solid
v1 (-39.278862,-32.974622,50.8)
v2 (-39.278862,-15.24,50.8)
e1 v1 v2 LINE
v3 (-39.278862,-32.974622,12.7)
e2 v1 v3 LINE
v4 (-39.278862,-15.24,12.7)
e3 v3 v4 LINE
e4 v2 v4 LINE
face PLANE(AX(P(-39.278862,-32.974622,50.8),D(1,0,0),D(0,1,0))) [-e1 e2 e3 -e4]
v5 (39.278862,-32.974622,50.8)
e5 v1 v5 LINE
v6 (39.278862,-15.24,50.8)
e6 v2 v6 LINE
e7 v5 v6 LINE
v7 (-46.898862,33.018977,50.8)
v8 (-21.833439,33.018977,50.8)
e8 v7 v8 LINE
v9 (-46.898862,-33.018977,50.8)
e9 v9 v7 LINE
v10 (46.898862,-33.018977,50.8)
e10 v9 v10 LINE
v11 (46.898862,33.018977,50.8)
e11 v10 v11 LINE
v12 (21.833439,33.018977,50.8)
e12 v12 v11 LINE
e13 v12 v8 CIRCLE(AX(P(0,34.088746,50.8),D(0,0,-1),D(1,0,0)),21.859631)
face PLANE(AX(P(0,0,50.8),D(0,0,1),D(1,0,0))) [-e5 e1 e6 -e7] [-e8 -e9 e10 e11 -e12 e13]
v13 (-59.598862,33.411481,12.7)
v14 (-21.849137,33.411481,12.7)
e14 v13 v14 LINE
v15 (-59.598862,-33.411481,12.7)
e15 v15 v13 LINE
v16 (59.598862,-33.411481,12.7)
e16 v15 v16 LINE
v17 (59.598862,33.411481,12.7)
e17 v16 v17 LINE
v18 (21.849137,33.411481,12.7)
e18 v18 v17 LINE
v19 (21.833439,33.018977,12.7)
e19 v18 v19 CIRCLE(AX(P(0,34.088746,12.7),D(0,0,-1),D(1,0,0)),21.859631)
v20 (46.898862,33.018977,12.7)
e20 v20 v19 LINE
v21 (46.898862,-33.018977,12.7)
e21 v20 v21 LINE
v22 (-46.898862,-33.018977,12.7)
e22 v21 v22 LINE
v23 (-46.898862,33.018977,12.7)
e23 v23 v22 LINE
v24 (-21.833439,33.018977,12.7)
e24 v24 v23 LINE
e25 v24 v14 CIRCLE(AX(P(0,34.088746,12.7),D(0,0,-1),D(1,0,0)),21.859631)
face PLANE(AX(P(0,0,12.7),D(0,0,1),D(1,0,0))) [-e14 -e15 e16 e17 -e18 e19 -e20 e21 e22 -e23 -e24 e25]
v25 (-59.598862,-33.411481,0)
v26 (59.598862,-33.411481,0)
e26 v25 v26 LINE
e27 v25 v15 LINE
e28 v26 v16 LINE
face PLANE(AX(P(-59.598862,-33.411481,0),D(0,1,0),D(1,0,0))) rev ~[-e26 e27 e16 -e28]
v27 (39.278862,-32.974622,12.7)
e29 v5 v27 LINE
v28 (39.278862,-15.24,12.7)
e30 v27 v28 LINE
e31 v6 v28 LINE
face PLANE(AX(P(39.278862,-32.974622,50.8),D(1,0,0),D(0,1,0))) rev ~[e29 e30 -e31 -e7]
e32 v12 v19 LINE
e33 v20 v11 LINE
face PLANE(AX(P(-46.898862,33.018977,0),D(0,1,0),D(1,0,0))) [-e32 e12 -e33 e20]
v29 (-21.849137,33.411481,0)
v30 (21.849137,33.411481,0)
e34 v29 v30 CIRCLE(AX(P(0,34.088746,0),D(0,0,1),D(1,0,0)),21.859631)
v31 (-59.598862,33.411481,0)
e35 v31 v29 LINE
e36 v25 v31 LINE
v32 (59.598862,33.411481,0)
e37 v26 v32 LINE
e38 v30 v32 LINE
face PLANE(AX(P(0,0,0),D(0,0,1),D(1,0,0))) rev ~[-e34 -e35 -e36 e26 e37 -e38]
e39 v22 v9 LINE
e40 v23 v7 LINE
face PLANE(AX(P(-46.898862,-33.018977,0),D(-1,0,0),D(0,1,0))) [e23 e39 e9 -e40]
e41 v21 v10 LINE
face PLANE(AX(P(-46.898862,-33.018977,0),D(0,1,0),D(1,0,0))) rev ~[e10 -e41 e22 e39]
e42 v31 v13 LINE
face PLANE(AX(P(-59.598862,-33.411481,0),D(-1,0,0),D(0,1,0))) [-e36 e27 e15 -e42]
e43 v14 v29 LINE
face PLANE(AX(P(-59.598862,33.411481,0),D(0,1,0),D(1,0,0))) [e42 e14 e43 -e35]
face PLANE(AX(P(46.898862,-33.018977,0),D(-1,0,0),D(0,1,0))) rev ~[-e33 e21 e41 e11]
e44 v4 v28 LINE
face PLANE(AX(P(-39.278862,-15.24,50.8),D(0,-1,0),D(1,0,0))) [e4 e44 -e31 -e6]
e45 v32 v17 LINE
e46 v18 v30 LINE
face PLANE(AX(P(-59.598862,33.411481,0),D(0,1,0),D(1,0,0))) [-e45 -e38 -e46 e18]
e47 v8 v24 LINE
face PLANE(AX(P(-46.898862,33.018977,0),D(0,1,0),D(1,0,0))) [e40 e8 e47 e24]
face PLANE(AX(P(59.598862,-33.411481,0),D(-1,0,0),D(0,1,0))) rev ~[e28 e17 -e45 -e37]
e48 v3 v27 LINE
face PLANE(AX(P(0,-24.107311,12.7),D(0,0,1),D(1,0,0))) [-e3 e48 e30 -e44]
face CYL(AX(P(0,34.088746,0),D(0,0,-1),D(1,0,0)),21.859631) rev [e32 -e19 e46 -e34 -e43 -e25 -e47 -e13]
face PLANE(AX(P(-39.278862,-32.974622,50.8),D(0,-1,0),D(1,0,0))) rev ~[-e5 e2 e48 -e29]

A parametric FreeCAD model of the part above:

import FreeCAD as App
import Part
import Sketcher
from FreeCAD import Vector
Q = App.Units.Quantity


def add_polygon(sketch, points):
    """Adds a closed chain of lines whose ends are joined by coincident constraints."""
    first, n = sketch.GeometryCount, len(points)
    for a, b in zip(points, points[1:] + points[:1]):
        sketch.addGeometry(Part.LineSegment(App.Vector(*a, 0), App.Vector(*b, 0)), False)
    for i in range(n):
        sketch.addConstraint(Sketcher.Constraint("Coincident", first + i, 2, first + (i + 1) % n, 1))

doc = App.newDocument("Part")
body = doc.addObject("PartDesign::Body", "Body")

sketch1 = body.newObject("Sketcher::SketchObject", "Sketch")
sketch1.AttachmentSupport = (doc.getObject("XY_Plane"), [""])
sketch1.MapMode = "FlatFace"
add_polygon(sketch1, [(-60, 33), (-60, -33), (60, -33), (60, 33)])
sketch1.addConstraint([
    Sketcher.Constraint("Vertical", 0),
    Sketcher.Constraint("Horizontal", 1),
    Sketcher.Constraint("Vertical", 2),
    Sketcher.Constraint("Horizontal", 3),
    Sketcher.Constraint("Symmetric", 0, 2, 2, 2, -1, 1),
    Sketcher.Constraint("DistanceX", 1, 1, 1, 2, 119.197724),
    Sketcher.Constraint("DistanceY", 0, 2, 0, 1, 66.822962),
])
pad1 = body.newObject("PartDesign::Pad", "Pad")
pad1.Profile = sketch1
pad1.Length = Q("0.5 in")

sketch2 = body.newObject("Sketcher::SketchObject", "Sketch001")
sketch2.AttachmentSupport = (doc.getObject("XY_Plane"), [""])
sketch2.MapMode = "FlatFace"
add_polygon(sketch2, [(-47, 33), (-47, -33), (47, -33), (47, 33)])
sketch2.addConstraint([
    Sketcher.Constraint("Vertical", 0),
    Sketcher.Constraint("Horizontal", 1),
    Sketcher.Constraint("Vertical", 2),
    Sketcher.Constraint("Horizontal", 3),
    Sketcher.Constraint("Symmetric", 0, 2, 2, 2, -1, 1),
    Sketcher.Constraint("DistanceX", 1, 1, 1, 2, 93.797724),
    Sketcher.Constraint("DistanceY", 0, 2, 0, 1, 66.037954),
])
pad2 = body.newObject("PartDesign::Pad", "Pad001")
pad2.Profile = sketch2
pad2.Length = Q("2 in")

sketch3 = body.newObject("Sketcher::SketchObject", "Sketch002")
sketch3.AttachmentSupport = (doc.getObject("XY_Plane"), [""])
sketch3.MapMode = "FlatFace"
sketch3.addGeometry(Part.Circle(Vector(0, 34, 0), Vector(0, 0, 1), 22), False)
sketch3.addConstraint([
    Sketcher.Constraint("PointOnObject", 0, 3, -2),
    Sketcher.Constraint("Diameter", 0, 43.719262),
    Sketcher.Constraint("DistanceY", -1, 1, 0, 3, 34.088746),
])
pocket1 = body.newObject("PartDesign::Pocket", "Pocket")
pocket1.Profile = sketch3
pocket1.Length = Q("4.86 in")
pocket1.Reversed = True

sketch4 = body.newObject("Sketcher::SketchObject", "Sketch003")
sketch4.AttachmentSupport = (doc.getObject("XY_Plane"), [""])
sketch4.MapMode = "FlatFace"
sketch4.AttachmentOffset = App.Placement(Vector(0, 0, 2 * 25.4), App.Rotation())
add_polygon(sketch4, [(-39, -15), (-39, -33), (39, -33), (39, -15)])
sketch4.addConstraint([
    Sketcher.Constraint("Vertical", 0),
    Sketcher.Constraint("Horizontal", 1),
    Sketcher.Constraint("Vertical", 2),
    Sketcher.Constraint("Horizontal", 3),
    Sketcher.Constraint("DistanceY", 2, 2, -1, 1, Q("0.6 in")),
    Sketcher.Constraint("DistanceY", 0, 2, 0, 1, 17.734622),
    Sketcher.Constraint("DistanceX", 1, 1, 1, 2, 78.557724),
    Sketcher.Constraint("DistanceX", 0, 2, -1, 1, 39.278862),
])
pocket2 = body.newObject("PartDesign::Pocket", "Pocket001")
pocket2.Profile = sketch4
pocket2.Length = Q("1.5 in")

doc.recompute()
